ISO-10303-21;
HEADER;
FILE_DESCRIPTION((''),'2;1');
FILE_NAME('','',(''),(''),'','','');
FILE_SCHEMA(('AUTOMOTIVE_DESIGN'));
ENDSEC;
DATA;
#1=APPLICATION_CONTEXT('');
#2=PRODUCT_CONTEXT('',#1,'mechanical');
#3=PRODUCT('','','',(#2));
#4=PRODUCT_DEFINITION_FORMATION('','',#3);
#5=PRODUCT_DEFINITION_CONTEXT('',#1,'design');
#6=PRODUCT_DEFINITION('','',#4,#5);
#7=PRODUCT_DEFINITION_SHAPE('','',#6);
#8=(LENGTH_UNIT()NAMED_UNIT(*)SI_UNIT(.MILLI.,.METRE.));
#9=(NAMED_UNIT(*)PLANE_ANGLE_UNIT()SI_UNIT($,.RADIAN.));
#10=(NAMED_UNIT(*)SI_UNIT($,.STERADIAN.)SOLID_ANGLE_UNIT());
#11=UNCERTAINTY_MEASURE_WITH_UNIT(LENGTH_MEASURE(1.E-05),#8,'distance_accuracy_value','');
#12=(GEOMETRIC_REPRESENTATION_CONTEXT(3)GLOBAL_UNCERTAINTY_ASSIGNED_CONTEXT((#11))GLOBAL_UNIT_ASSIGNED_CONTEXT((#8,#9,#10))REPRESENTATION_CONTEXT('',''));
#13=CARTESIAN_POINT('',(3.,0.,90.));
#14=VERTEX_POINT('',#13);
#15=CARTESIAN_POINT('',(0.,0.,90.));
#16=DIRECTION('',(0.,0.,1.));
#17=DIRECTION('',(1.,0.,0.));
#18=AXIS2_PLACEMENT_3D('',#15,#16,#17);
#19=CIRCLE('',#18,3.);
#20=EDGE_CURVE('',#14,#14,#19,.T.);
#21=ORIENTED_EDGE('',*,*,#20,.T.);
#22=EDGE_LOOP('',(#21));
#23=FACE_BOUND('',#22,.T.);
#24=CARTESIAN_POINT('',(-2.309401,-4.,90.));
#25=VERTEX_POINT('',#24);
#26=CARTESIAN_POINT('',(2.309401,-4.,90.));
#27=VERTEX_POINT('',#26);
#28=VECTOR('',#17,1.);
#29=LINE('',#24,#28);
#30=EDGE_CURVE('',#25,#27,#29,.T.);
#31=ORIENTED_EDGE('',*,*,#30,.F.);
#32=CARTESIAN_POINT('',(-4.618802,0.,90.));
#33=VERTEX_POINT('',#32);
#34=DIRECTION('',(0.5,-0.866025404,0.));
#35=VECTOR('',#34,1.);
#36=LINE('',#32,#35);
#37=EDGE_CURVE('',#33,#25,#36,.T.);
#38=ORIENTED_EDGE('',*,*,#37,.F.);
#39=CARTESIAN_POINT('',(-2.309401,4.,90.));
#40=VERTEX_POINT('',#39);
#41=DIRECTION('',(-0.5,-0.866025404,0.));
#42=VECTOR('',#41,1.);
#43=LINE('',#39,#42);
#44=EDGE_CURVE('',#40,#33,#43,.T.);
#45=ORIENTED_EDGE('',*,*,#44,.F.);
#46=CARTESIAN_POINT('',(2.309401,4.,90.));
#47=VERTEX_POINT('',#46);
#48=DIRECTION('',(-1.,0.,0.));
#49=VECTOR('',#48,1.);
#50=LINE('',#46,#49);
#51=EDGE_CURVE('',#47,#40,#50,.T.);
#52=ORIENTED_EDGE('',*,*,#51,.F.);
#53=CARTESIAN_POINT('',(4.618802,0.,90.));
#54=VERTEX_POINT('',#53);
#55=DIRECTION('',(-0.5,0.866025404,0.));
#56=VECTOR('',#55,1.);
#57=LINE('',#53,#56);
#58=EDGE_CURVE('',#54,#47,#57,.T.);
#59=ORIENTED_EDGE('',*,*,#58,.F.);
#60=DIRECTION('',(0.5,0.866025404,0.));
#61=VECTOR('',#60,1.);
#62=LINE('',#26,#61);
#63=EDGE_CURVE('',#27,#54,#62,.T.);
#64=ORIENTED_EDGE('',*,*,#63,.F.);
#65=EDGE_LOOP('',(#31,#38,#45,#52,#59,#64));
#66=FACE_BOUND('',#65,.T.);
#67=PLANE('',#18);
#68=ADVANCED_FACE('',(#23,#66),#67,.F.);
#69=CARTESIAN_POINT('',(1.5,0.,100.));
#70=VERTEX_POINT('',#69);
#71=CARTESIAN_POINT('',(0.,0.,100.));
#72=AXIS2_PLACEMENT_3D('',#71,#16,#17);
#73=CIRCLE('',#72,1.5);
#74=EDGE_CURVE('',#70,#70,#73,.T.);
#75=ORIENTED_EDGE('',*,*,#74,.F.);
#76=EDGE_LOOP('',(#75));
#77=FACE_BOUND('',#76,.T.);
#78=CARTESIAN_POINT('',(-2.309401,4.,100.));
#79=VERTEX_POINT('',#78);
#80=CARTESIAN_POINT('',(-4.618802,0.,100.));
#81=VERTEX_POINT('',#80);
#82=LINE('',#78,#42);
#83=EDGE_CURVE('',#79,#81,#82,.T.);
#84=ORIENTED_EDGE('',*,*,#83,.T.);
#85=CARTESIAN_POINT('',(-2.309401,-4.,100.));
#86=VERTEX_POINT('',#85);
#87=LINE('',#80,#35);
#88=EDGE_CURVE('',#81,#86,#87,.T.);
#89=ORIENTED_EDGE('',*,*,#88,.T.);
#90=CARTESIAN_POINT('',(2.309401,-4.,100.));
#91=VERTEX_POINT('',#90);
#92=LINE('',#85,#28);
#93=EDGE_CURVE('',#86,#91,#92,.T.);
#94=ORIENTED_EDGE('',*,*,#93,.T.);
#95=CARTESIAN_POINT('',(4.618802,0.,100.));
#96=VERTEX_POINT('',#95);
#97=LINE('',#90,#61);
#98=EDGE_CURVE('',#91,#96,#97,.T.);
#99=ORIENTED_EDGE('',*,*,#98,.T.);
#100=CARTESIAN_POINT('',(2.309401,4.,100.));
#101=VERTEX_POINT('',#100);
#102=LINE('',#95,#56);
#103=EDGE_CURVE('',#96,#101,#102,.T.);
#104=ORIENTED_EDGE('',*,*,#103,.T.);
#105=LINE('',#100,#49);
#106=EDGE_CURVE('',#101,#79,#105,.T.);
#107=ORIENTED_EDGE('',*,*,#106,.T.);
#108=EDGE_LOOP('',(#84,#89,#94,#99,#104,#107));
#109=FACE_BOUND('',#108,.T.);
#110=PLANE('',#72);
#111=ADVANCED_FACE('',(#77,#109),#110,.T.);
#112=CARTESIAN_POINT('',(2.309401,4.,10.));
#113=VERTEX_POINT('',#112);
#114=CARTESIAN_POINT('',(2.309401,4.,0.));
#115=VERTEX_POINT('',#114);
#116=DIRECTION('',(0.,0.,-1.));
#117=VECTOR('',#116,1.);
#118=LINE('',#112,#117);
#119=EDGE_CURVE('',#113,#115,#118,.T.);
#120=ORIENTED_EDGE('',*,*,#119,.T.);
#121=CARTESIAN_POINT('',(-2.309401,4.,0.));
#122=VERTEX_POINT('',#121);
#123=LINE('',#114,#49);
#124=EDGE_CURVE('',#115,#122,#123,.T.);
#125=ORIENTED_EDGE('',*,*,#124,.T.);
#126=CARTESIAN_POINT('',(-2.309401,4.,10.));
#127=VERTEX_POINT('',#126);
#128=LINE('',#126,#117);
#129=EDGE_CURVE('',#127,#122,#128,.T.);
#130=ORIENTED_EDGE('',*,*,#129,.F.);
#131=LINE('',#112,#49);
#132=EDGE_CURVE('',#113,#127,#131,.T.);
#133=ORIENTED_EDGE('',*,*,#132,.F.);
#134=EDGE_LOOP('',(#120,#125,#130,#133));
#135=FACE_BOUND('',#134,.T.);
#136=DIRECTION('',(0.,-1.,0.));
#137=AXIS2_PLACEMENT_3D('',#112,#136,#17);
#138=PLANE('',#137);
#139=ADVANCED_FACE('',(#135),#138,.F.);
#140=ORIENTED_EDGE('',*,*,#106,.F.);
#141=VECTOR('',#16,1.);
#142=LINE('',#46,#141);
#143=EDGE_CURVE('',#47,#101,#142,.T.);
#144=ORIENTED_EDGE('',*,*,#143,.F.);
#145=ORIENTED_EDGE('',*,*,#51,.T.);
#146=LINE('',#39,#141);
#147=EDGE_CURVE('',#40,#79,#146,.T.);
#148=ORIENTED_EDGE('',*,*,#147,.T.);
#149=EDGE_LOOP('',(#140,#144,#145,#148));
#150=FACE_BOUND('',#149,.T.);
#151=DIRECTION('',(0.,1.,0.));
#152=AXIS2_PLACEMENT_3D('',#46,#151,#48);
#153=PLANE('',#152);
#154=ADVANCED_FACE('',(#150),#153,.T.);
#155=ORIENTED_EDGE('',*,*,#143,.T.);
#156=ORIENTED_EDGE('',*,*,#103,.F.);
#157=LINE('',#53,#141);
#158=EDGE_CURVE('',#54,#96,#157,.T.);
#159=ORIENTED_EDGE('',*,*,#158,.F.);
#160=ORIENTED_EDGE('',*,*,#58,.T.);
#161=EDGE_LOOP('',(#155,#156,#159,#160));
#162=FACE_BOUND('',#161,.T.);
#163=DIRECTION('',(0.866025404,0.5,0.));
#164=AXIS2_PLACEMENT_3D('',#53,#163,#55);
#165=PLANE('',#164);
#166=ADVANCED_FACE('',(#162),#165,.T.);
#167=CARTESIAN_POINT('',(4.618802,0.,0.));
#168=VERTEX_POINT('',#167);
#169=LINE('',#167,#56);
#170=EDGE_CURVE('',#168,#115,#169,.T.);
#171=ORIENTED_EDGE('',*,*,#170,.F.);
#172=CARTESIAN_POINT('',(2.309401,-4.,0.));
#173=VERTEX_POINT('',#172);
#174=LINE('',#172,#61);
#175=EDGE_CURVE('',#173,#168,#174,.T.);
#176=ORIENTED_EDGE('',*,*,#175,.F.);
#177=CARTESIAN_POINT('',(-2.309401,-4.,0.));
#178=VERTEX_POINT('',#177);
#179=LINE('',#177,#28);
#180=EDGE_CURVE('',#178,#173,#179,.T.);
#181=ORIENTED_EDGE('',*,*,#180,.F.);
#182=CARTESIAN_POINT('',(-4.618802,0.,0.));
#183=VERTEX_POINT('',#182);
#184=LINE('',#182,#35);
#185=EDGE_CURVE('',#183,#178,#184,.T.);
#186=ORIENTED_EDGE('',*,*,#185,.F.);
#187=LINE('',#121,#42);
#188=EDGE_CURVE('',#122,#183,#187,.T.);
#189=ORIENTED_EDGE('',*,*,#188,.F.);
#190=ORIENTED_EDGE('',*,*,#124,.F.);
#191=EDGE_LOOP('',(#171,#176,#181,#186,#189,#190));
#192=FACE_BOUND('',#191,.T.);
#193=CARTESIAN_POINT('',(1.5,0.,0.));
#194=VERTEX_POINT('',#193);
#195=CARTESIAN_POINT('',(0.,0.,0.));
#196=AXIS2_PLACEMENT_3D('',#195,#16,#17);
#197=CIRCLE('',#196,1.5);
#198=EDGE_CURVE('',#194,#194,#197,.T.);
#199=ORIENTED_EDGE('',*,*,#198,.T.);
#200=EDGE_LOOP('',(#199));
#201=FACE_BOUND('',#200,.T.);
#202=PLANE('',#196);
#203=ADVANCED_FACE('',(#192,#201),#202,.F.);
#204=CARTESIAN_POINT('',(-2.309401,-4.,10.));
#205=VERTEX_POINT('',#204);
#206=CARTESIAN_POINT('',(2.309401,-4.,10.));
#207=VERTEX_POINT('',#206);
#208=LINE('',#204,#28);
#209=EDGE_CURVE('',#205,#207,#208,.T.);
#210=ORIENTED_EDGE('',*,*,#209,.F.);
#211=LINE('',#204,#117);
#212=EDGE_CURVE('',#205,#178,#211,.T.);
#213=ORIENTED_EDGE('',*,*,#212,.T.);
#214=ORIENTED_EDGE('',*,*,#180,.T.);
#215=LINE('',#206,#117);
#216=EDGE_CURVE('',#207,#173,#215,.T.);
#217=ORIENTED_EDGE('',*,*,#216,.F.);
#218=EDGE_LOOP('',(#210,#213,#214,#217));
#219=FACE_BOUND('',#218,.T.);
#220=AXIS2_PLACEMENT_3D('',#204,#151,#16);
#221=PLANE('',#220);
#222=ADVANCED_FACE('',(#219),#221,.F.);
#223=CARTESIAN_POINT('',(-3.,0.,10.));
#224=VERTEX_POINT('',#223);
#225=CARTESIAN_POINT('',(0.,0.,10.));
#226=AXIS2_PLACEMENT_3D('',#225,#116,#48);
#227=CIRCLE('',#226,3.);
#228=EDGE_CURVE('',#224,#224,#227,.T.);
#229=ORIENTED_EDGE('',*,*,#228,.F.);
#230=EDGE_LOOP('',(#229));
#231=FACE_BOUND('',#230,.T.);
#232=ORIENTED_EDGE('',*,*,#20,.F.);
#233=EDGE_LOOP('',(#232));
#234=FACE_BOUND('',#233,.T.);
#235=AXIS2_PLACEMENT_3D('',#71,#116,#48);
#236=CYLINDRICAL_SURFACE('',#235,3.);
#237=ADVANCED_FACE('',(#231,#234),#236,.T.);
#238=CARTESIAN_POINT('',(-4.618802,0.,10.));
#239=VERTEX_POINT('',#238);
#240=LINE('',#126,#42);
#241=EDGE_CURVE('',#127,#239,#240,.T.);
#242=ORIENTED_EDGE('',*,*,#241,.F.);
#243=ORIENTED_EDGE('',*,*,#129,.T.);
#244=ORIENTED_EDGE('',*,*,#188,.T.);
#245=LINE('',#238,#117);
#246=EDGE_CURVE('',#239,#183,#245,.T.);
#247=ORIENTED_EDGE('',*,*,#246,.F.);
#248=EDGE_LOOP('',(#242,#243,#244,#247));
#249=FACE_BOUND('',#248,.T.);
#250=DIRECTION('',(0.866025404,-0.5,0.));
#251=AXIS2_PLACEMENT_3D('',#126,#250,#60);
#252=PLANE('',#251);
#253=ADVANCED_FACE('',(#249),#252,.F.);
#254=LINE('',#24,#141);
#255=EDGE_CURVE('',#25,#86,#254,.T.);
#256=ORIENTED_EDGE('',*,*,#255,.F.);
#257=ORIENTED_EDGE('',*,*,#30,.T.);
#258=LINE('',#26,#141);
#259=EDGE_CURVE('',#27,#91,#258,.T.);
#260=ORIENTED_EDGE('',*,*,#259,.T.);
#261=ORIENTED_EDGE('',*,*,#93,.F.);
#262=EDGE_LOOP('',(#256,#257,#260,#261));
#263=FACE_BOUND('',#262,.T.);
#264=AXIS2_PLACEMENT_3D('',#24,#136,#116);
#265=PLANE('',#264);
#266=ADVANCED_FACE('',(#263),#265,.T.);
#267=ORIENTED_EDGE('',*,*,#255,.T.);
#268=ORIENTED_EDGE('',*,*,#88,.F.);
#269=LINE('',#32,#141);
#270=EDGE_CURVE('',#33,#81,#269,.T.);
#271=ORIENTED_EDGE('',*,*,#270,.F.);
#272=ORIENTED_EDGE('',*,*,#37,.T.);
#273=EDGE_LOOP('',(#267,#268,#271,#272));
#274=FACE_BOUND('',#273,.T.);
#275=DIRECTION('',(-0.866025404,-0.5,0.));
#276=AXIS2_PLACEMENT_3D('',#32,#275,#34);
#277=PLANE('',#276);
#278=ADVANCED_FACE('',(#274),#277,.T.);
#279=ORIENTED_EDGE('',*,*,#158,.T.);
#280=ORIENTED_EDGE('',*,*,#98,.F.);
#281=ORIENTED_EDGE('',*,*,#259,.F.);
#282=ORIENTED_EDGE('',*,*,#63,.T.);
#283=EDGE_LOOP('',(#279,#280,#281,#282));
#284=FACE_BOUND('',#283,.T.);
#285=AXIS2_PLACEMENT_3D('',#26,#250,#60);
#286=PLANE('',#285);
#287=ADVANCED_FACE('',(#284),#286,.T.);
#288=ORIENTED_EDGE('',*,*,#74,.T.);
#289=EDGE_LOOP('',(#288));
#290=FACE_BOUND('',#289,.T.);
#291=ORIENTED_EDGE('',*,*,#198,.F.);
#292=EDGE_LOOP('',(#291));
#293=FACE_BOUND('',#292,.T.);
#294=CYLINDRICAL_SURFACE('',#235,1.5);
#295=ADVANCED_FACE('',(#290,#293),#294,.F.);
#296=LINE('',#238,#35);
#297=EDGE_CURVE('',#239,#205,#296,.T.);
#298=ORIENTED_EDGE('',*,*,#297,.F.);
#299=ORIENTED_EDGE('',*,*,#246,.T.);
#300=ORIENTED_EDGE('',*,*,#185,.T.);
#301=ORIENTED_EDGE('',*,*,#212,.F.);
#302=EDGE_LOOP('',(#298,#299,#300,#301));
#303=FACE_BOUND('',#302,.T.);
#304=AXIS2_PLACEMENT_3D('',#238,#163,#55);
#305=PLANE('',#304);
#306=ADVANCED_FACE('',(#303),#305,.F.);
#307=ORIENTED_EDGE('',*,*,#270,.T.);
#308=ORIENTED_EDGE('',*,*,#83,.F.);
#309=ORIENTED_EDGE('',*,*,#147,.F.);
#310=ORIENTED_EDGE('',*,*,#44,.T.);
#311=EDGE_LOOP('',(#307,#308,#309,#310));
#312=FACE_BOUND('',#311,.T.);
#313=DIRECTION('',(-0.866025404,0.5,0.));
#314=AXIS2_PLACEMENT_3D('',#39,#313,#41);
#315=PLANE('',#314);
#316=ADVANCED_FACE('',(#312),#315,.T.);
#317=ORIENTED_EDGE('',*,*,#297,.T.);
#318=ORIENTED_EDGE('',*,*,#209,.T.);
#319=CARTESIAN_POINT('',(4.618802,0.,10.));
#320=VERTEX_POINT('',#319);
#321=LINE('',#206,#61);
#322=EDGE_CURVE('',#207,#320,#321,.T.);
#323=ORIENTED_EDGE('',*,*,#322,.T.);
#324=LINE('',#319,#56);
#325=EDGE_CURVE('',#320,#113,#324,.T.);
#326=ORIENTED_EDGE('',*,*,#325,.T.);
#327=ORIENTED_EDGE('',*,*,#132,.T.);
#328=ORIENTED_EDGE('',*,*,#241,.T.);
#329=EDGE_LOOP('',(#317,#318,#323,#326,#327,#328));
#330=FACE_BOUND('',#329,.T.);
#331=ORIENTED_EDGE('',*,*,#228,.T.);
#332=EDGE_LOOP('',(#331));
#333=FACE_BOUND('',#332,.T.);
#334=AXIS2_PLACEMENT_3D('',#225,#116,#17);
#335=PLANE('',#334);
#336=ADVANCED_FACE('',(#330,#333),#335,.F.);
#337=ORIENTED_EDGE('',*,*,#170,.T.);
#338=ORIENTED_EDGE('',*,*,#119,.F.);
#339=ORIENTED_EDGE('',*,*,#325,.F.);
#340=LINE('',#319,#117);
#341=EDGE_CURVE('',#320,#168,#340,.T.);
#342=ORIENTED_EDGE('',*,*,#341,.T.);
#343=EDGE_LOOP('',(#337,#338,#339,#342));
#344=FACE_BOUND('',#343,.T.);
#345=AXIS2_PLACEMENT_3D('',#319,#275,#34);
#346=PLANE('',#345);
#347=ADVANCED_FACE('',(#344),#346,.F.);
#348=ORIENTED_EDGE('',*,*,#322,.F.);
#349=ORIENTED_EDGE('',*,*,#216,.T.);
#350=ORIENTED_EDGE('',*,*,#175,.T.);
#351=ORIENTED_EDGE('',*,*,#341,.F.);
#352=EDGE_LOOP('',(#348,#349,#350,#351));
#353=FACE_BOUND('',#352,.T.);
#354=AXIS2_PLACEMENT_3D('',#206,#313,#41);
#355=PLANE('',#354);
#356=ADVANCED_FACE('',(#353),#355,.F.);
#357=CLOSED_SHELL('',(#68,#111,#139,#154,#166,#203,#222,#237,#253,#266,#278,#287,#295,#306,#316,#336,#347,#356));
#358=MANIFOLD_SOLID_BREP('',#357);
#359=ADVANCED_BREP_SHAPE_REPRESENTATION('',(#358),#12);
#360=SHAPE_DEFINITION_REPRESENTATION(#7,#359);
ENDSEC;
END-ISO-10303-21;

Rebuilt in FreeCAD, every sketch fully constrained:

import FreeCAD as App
import Part
import Sketcher

V = App.Vector
Q = App.Units.Quantity

doc = App.newDocument("Part")
params = doc.addObject("Spreadsheet::Sheet", "Params")
for row, (alias, value) in enumerate([
    ("sketch1_diameter", "6 mm"),
    ("sketch1_diameter2", "3 mm"),
    ("pad1_length", "100 mm"),
    ("sketch2_diameter", "3 mm"),
    ("pad2_length", "10 mm"),
], start=1):
    params.set(f"A{row}", alias)
    params.set(f"B{row}", "=" + value)
    params.setAlias(f"B{row}", alias)

body = doc.addObject("PartDesign::Body", "Body")

sketch1 = body.newObject("Sketcher::SketchObject", "Sketch")
sketch1.AttachmentSupport = (doc.getObject("XY_Plane"), [""])
sketch1.MapMode = "FlatFace"
sketch1.addGeometry([
    Part.Circle(V(0, 0, 0), V(0, 0, 1), 3),
    Part.Circle(V(0, 0, 0), V(0, 0, 1), 1.5),
], False)
sketch1.addConstraint([
    Sketcher.Constraint("Coincident", 0, 3, -1, 1),
    Sketcher.Constraint("Coincident", 1, 3, -1, 1),
    Sketcher.Constraint("Diameter", 0, 6.0),
    Sketcher.Constraint("Diameter", 1, 3.0),
])
sketch1.setExpression("Constraints[2]", "Params.sketch1_diameter")
sketch1.setExpression("Constraints[3]", "Params.sketch1_diameter2")
pad1 = body.newObject("PartDesign::Pad", "Pad")
pad1.Profile = sketch1
pad1.setExpression("Length", "Params.pad1_length")

sketch2 = body.newObject("Sketcher::SketchObject", "Sketch001")
sketch2.AttachmentSupport = (doc.getObject("XY_Plane"), [""])
sketch2.MapMode = "FlatFace"
sketch2.AttachmentOffset = App.Placement(V(0, 0, 100), App.Rotation())
sketch2.addGeometry([
    Part.LineSegment(V(4.618802, 0, 0), V(2.309401, 4, 0)),
    Part.LineSegment(V(2.309401, 4, 0), V(-2.309401, 4, 0)),
    Part.LineSegment(V(-2.309401, 4, 0), V(-4.618802, 0, 0)),
    Part.LineSegment(V(-4.618802, 0, 0), V(-2.309401, -4, 0)),
    Part.LineSegment(V(-2.309401, -4, 0), V(2.309401, -4, 0)),
    Part.LineSegment(V(2.309401, -4, 0), V(4.618802, 0, 0)),
    Part.Circle(V(0, 0, 0), V(0, 0, 1), 1.5),
], False)
sketch2.addConstraint([
    Sketcher.Constraint("Coincident", 0, 2, 1, 1),
    Sketcher.Constraint("Coincident", 1, 2, 2, 1),
    Sketcher.Constraint("Coincident", 2, 2, 3, 1),
    Sketcher.Constraint("Coincident", 3, 2, 4, 1),
    Sketcher.Constraint("Coincident", 4, 2, 5, 1),
    Sketcher.Constraint("Coincident", 5, 2, 0, 1),
    Sketcher.Constraint("Horizontal", 1),
    Sketcher.Constraint("Horizontal", 4),
    Sketcher.Constraint("Coincident", 6, 3, -1, 1),
    Sketcher.Constraint("Symmetric", 0, 2, 3, 2, -1, 1),
    Sketcher.Constraint("Symmetric", 2, 2, 5, 2, -1, 1),
    Sketcher.Constraint("PointOnObject", 2, 2, -1),
    Sketcher.Constraint("Parallel", 2, 5),
    Sketcher.Constraint("Vertical", 1, 2, 3, 2),
    Sketcher.Constraint("Diameter", 6, 3.0),
    Sketcher.Constraint("Angle", 0, Q("120 deg")),
    Sketcher.Constraint("DistanceY", -1, 1, 0, 2, 4.0),
    Sketcher.Constraint("DistanceX", -1, 1, 0, 2, 2.309401),
])
sketch2.setExpression("Constraints[14]", "Params.sketch2_diameter")
pad2 = body.newObject("PartDesign::Pad", "Pad001")
pad2.Profile = sketch2
pad2.setExpression("Length", "Params.pad2_length")
pad2.Reversed = True
doc.recompute()

datumplane = body.newObject("PartDesign::Plane", "DatumPlane")
datumplane.AttachmentSupport = (doc.getObject("XY_Plane"), [""])
datumplane.MapMode = "FlatFace"
datumplane.AttachmentOffset = App.Placement(V(0, 0, 50), App.Rotation())
mirrored = body.newObject("PartDesign::Mirrored", "Mirrored")
mirrored.Originals = [pad2]
mirrored.MirrorPlane = (datumplane, [""])
body.Tip = mirrored

doc.recompute()
